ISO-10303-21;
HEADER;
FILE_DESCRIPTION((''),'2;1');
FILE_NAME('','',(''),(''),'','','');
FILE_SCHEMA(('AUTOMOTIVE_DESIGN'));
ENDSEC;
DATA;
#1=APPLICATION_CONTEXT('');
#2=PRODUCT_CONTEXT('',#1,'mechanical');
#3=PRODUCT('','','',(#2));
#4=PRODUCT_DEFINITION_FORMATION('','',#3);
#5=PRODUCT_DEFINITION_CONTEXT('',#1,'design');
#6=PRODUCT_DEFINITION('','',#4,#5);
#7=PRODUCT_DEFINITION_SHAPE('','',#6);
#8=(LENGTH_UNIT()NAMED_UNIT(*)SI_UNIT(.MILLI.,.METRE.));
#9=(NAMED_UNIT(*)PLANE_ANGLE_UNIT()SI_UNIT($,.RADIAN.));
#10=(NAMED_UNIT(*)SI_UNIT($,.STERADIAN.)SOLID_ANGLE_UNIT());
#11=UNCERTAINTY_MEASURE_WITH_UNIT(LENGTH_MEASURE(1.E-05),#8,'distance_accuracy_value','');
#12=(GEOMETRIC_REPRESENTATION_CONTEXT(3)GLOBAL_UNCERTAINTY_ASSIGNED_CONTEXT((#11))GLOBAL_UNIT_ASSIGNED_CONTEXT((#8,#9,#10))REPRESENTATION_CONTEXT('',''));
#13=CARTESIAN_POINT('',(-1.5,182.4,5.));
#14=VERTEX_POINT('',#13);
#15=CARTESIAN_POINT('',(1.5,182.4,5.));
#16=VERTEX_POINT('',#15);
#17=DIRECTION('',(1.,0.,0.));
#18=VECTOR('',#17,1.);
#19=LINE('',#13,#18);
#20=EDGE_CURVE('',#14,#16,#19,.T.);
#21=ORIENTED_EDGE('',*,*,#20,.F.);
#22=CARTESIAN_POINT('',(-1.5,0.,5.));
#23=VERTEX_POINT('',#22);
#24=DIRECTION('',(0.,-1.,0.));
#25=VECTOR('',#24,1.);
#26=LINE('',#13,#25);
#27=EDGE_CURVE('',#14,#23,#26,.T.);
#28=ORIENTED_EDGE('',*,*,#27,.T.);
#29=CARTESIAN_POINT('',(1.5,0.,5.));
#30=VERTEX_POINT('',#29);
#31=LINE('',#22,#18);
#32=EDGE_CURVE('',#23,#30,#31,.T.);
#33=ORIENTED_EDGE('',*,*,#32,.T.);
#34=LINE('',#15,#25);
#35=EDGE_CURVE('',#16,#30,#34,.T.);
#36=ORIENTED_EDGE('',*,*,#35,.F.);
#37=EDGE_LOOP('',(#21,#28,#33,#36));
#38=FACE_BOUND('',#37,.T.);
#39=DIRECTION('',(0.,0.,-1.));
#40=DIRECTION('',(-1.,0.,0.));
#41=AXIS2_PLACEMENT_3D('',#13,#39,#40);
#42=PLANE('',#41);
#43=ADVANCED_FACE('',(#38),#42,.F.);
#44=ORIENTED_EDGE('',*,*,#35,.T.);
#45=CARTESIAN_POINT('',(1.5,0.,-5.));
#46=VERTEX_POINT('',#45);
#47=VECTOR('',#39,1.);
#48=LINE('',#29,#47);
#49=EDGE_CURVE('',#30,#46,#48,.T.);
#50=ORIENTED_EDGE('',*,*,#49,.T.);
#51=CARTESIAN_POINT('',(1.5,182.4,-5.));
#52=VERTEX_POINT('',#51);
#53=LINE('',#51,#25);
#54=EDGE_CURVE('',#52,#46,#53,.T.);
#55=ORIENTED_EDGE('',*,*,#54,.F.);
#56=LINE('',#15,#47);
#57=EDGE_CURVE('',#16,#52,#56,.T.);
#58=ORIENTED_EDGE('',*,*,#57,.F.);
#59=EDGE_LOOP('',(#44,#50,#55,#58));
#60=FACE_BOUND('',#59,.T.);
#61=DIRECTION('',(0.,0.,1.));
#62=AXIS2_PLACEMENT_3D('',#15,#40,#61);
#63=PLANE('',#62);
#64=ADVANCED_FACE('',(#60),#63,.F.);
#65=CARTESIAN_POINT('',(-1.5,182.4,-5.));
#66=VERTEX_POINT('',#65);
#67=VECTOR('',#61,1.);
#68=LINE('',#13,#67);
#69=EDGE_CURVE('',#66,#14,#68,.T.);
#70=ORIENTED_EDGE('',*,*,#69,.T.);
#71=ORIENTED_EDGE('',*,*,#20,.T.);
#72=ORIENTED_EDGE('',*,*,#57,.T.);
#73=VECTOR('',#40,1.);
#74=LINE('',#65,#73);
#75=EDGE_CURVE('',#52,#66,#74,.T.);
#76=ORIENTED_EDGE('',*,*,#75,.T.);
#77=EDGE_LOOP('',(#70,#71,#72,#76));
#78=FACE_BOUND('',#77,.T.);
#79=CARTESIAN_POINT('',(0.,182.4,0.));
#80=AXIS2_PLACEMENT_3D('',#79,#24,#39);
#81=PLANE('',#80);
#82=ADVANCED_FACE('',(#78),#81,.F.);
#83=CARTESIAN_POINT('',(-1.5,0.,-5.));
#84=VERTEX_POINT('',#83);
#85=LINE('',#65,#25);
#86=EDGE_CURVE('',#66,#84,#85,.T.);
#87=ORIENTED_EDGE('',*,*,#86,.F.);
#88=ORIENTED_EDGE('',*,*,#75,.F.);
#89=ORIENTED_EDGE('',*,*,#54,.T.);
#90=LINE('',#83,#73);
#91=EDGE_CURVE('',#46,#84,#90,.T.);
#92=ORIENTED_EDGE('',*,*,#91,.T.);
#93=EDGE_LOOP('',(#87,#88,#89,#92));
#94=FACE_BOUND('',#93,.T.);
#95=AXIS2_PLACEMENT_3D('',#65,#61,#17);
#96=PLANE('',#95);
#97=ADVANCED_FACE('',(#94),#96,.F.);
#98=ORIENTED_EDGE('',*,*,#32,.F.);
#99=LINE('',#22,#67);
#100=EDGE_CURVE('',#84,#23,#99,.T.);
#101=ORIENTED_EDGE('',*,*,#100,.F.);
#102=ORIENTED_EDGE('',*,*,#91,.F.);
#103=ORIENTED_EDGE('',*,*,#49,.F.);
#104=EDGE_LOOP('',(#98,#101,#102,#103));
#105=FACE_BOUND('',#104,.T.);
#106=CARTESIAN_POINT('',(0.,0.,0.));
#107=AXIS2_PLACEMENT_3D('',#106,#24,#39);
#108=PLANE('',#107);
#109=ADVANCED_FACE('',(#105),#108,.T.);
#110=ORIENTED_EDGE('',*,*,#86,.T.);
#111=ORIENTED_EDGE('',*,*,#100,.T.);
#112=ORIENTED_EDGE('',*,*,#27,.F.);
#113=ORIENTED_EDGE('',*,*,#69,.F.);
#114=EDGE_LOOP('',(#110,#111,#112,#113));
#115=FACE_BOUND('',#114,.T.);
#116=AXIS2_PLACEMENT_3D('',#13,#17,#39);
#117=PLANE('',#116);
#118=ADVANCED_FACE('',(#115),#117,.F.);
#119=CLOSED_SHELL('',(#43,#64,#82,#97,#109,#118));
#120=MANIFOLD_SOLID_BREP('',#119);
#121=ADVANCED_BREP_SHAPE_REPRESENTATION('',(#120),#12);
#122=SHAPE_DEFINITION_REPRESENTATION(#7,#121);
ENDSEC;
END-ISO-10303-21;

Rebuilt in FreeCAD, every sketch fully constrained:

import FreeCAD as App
import Part
import Sketcher

doc = App.newDocument("Part")
body = doc.addObject("PartDesign::Body", "Body")

sketch1 = doc.addObject("Sketcher::SketchObject", "Sketch")
body.addObject(sketch1)
sketch1.AttachmentSupport = (doc.XZ_Plane, [""])
sketch1.MapMode = "FlatFace"
sketch1.addGeometry([
    Part.LineSegment(App.Vector(-1.5, -5, 0), App.Vector(-1.5, 5, 0)),
    Part.LineSegment(App.Vector(-1.5, 5, 0), App.Vector(1.5, 5, 0)),
    Part.LineSegment(App.Vector(1.5, 5, 0), App.Vector(1.5, -5, 0)),
    Part.LineSegment(App.Vector(1.5, -5, 0), App.Vector(-1.5, -5, 0)),
], False)
sketch1.addConstraint([
    Sketcher.Constraint("Coincident", 0, 2, 1, 1),
    Sketcher.Constraint("Coincident", 1, 2, 2, 1),
    Sketcher.Constraint("Coincident", 2, 2, 3, 1),
    Sketcher.Constraint("Coincident", 3, 2, 0, 1),
    Sketcher.Constraint("Vertical", 0),
    Sketcher.Constraint("Horizontal", 1),
    Sketcher.Constraint("Vertical", 2),
    Sketcher.Constraint("Horizontal", 3),
    Sketcher.Constraint("Symmetric", 0, 2, 2, 2, -1, 1),
    Sketcher.Constraint("DistanceX", 1, 1, 1, 2, 3.0),
    Sketcher.Constraint("DistanceY", 0, 1, 0, 2, 10.0),
])
pad1 = doc.addObject("PartDesign::Pad", "Pad")
body.addObject(pad1)
pad1.Profile = sketch1
pad1.Length = 182.4
pad1.Reversed = True

doc.recompute()
